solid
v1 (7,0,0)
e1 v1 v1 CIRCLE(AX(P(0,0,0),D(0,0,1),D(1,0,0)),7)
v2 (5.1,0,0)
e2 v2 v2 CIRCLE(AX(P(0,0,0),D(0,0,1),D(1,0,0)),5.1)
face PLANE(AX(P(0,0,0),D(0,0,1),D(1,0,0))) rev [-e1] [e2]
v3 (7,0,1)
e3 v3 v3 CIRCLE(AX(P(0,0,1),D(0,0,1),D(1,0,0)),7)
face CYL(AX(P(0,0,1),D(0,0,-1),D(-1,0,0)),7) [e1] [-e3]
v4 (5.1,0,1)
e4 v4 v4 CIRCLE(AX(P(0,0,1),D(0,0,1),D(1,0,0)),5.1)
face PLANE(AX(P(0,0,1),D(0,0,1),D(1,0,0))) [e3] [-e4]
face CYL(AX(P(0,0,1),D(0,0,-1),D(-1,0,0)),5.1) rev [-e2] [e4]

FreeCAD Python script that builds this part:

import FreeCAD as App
import Part
import Sketcher

V = App.Vector
Q = App.Units.Quantity

doc = App.newDocument("Part")
body = doc.addObject("PartDesign::Body", "Body")

# Sketch on XY plane
sketch1 = body.newObject("Sketcher::SketchObject", "Sketch")
sketch1.AttachmentSupport = (doc.getObject("XY_Plane"), [""])
sketch1.MapMode = "FlatFace"
sketch1.addGeometry(Part.Circle(V(0, 0, 0), V(0, 0, 1), 7), False)
sketch1.addGeometry(Part.Circle(V(0, 0, 0), V(0, 0, 1), 5.1), False)
sketch1.addConstraint(Sketcher.Constraint("Coincident", 0, 3, -1, 1))
sketch1.addConstraint(Sketcher.Constraint("Coincident", 1, 3, -1, 1))
sketch1.addConstraint(Sketcher.Constraint("Diameter", 0, Q("14 mm")))
sketch1.addConstraint(Sketcher.Constraint("Diameter", 1, Q("10.2 mm")))
pad1 = body.newObject("PartDesign::Pad", "Pad")
pad1.Profile = sketch1
pad1.Length = 1

doc.recompute()
